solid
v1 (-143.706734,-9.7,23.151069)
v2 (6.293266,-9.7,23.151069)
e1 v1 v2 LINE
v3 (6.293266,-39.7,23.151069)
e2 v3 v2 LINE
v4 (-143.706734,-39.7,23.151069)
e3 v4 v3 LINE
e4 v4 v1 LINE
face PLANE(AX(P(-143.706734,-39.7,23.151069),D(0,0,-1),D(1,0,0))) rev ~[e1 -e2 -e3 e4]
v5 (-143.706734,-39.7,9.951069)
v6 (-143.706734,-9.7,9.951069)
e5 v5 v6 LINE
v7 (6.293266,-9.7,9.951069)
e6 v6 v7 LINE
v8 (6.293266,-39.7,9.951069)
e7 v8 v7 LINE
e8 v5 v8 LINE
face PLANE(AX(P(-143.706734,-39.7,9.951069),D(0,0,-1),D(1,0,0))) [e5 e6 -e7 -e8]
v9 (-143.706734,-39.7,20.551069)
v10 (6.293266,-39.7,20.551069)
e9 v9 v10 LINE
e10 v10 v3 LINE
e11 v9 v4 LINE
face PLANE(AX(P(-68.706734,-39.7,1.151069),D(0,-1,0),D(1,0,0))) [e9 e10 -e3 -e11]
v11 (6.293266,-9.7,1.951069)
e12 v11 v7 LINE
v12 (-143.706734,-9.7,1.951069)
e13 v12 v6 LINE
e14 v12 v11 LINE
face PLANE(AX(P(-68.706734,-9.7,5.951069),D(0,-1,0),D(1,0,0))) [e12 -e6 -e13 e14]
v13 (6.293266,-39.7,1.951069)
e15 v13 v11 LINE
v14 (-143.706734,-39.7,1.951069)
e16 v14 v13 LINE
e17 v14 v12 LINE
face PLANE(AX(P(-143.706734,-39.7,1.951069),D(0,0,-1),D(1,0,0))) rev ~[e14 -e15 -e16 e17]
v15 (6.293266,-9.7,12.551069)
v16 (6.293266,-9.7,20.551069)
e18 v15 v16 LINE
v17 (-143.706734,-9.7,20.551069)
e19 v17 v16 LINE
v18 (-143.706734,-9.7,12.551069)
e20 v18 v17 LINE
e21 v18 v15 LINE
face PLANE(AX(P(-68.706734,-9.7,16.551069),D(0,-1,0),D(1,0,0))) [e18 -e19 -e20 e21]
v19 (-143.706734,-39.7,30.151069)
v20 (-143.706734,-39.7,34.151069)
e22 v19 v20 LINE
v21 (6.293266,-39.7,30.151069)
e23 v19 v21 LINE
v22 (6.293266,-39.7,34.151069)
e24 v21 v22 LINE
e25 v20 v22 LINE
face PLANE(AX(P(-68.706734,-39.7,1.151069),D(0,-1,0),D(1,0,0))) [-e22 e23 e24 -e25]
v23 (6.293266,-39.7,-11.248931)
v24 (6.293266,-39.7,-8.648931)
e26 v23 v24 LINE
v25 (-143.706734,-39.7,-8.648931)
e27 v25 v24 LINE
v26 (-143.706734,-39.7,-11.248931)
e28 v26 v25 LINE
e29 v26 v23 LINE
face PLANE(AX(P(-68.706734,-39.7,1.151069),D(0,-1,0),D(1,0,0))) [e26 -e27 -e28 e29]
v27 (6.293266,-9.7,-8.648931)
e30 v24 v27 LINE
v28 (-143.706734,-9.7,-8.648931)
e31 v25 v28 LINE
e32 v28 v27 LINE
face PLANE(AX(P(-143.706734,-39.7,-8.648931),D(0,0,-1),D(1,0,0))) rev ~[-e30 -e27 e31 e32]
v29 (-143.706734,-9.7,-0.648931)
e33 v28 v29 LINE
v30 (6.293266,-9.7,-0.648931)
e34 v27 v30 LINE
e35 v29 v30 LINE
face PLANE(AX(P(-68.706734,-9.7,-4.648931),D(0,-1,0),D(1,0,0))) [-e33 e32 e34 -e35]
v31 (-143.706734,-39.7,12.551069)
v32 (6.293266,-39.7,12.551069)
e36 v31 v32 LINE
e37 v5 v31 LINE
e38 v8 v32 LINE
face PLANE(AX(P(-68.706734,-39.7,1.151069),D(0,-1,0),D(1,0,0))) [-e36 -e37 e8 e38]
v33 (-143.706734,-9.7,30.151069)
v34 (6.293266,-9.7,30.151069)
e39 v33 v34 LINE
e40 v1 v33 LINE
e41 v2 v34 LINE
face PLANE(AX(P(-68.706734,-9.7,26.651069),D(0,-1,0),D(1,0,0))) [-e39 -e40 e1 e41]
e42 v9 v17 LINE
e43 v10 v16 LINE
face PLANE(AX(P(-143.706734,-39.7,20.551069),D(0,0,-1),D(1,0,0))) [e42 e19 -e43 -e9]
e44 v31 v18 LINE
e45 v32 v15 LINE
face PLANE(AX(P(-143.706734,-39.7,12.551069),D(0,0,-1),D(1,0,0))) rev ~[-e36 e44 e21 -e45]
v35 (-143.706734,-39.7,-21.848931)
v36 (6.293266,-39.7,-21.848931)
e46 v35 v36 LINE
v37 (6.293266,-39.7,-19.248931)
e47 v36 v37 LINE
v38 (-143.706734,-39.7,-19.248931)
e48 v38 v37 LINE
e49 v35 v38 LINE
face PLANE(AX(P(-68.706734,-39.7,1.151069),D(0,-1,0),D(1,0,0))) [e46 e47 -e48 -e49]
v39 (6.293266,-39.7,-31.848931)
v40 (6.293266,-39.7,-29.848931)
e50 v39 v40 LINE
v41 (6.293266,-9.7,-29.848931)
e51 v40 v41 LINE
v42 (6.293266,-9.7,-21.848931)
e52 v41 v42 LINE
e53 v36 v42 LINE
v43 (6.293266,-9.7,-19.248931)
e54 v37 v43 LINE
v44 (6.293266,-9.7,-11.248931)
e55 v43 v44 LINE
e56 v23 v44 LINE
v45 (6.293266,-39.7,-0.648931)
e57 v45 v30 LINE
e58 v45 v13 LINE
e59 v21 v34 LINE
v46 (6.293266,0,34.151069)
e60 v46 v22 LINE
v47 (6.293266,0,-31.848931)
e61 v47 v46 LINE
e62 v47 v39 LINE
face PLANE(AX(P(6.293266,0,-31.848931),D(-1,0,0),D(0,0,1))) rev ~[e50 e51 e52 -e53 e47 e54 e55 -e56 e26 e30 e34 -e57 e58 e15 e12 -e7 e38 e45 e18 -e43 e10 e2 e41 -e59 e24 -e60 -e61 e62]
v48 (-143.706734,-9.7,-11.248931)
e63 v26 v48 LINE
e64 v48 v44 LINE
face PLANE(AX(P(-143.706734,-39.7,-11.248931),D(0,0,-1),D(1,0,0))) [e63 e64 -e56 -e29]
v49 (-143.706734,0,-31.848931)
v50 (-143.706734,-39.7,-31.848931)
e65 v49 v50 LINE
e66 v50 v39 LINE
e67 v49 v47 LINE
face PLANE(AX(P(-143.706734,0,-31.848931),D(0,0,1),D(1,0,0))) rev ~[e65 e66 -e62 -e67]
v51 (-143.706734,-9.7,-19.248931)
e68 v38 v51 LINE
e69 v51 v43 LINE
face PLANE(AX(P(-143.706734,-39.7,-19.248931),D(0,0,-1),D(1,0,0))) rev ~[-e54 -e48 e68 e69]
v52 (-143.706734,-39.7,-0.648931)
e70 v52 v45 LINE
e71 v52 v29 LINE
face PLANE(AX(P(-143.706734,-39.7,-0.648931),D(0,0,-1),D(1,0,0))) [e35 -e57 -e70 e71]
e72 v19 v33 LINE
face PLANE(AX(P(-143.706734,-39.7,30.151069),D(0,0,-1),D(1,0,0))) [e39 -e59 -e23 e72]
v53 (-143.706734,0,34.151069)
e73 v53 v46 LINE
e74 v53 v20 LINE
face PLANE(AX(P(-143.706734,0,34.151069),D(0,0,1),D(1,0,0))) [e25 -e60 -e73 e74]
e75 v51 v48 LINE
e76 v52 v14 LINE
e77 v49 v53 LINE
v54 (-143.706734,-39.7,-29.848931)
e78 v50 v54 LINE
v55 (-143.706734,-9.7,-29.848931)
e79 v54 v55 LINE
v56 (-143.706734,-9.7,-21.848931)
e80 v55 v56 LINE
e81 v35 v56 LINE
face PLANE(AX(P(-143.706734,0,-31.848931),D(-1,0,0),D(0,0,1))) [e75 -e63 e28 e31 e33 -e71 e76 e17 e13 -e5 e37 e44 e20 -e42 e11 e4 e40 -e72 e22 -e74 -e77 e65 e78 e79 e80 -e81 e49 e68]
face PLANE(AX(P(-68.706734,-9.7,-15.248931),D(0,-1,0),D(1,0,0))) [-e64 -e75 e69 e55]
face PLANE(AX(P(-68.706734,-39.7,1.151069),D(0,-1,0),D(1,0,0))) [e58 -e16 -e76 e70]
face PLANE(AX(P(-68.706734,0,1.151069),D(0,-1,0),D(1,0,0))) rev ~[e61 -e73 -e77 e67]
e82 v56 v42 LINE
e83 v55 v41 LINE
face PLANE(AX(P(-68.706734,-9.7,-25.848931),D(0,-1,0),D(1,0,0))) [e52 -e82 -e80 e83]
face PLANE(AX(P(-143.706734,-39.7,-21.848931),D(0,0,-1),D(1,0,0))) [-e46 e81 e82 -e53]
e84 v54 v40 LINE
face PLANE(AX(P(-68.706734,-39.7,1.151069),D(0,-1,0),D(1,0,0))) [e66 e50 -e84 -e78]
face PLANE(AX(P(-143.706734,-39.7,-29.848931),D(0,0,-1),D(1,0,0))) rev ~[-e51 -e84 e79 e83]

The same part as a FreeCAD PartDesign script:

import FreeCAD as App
import Part
import Sketcher

V = App.Vector


def add_polygon(sketch, points):
    """Adds a closed chain of lines whose ends are joined by coincident constraints."""
    first, n = sketch.GeometryCount, len(points)
    for a, b in zip(points, points[1:] + points[:1]):
        sketch.addGeometry(Part.LineSegment(App.Vector(*a, 0), App.Vector(*b, 0)), False)
    for i in range(n):
        sketch.addConstraint(Sketcher.Constraint("Coincident", first + i, 2, first + (i + 1) % n, 1))

doc = App.newDocument("Part")
body = doc.addObject("PartDesign::Body", "Body")

sketch1 = doc.addObject("Sketcher::SketchObject", "Sketch")
body.addObject(sketch1)
sketch1.AttachmentSupport = (doc.XZ_Plane, [""])
sketch1.MapMode = "FlatFace"
add_polygon(sketch1, [(-143.706734, 34.151069), (-143.706734, -31.848931), (6.293266, -31.848931), (6.293266, 34.151069)])
sketch1.addConstraint(Sketcher.Constraint("Vertical", 0))
sketch1.addConstraint(Sketcher.Constraint("Horizontal", 1))
sketch1.addConstraint(Sketcher.Constraint("Vertical", 2))
sketch1.addConstraint(Sketcher.Constraint("Horizontal", 3))
sketch1.addConstraint(Sketcher.Constraint("DistanceX", 1, 1, 1, 2, 150.0))
sketch1.addConstraint(Sketcher.Constraint("DistanceY", 0, 2, 0, 1, 66.0))
sketch1.addConstraint(Sketcher.Constraint("DistanceY", 0, 2, -1, 1, 31.848931))
sketch1.addConstraint(Sketcher.Constraint("DistanceX", 0, 2, -1, 1, 143.706734))
pad1 = doc.addObject("PartDesign::Pad", "Pad")
body.addObject(pad1)
pad1.Profile = sketch1
pad1.Length = 39.7

sketch2 = doc.addObject("Sketcher::SketchObject", "Sketch001")
body.addObject(sketch2)
sketch2.AttachmentSupport = (doc.XZ_Plane, [""])
sketch2.MapMode = "FlatFace"
sketch2.AttachmentOffset = App.Placement(V(0, 0, 39.7), App.Rotation())
add_polygon(sketch2, [(-143.706734, 30.151069), (-143.706734, 23.151069), (6.293266, 23.151069), (6.293266, 30.151069)])
sketch2.addConstraint(Sketcher.Constraint("Vertical", 0))
sketch2.addConstraint(Sketcher.Constraint("Horizontal", 1))
sketch2.addConstraint(Sketcher.Constraint("Vertical", 2))
sketch2.addConstraint(Sketcher.Constraint("Horizontal", 3))
sketch2.addConstraint(Sketcher.Constraint("DistanceX", 1, 1, 1, 2, 150.0))
sketch2.addConstraint(Sketcher.Constraint("DistanceY", 0, 2, 0, 1, 7.0))
sketch2.addConstraint(Sketcher.Constraint("DistanceY", -1, 1, 0, 2, 23.151069))
sketch2.addConstraint(Sketcher.Constraint("DistanceX", 0, 2, -1, 1, 143.706734))
pocket1 = doc.addObject("PartDesign::Pocket", "Pocket")
body.addObject(pocket1)
pocket1.Profile = sketch2
pocket1.Length = 30

sketch3 = doc.addObject("Sketcher::SketchObject", "Sketch002")
body.addObject(sketch3)
sketch3.AttachmentSupport = (doc.XZ_Plane, [""])
sketch3.MapMode = "FlatFace"
sketch3.AttachmentOffset = App.Placement(V(0, 0, 39.7), App.Rotation())
add_polygon(sketch3, [(-143.706734, 20.551069), (-143.706734, 12.551069), (6.293266, 12.551069), (6.293266, 20.551069)])
sketch3.addConstraint(Sketcher.Constraint("Vertical", 0))
sketch3.addConstraint(Sketcher.Constraint("Horizontal", 1))
sketch3.addConstraint(Sketcher.Constraint("Vertical", 2))
sketch3.addConstraint(Sketcher.Constraint("Horizontal", 3))
sketch3.addConstraint(Sketcher.Constraint("DistanceX", 1, 1, 1, 2, 150.0))
sketch3.addConstraint(Sketcher.Constraint("DistanceY", 0, 2, 0, 1, 8.0))
sketch3.addConstraint(Sketcher.Constraint("DistanceY", -1, 1, 0, 2, 12.551069))
sketch3.addConstraint(Sketcher.Constraint("DistanceX", 0, 2, -1, 1, 143.706734))
pocket2 = doc.addObject("PartDesign::Pocket", "Pocket001")
body.addObject(pocket2)
pocket2.Profile = sketch3
pocket2.Length = 30

sketch4 = doc.addObject("Sketcher::SketchObject", "Sketch003")
body.addObject(sketch4)
sketch4.AttachmentSupport = (doc.XZ_Plane, [""])
sketch4.MapMode = "FlatFace"
sketch4.AttachmentOffset = App.Placement(V(0, 0, 39.7), App.Rotation())
add_polygon(sketch4, [(-143.706734, 9.951069), (-143.706734, 1.951069), (6.293266, 1.951069), (6.293266, 9.951069)])
sketch4.addConstraint(Sketcher.Constraint("Vertical", 0))
sketch4.addConstraint(Sketcher.Constraint("Horizontal", 1))
sketch4.addConstraint(Sketcher.Constraint("Vertical", 2))
sketch4.addConstraint(Sketcher.Constraint("Horizontal", 3))
sketch4.addConstraint(Sketcher.Constraint("DistanceX", 1, 1, 1, 2, 150.0))
sketch4.addConstraint(Sketcher.Constraint("DistanceY", 0, 2, 0, 1, 8.0))
sketch4.addConstraint(Sketcher.Constraint("DistanceY", -1, 1, 0, 2, 1.951069))
sketch4.addConstraint(Sketcher.Constraint("DistanceX", 0, 2, -1, 1, 143.706734))
pocket3 = doc.addObject("PartDesign::Pocket", "Pocket002")
body.addObject(pocket3)
pocket3.Profile = sketch4
pocket3.Length = 30

sketch5 = doc.addObject("Sketcher::SketchObject", "Sketch004")
body.addObject(sketch5)
sketch5.AttachmentSupport = (doc.XZ_Plane, [""])
sketch5.MapMode = "FlatFace"
sketch5.AttachmentOffset = App.Placement(V(0, 0, 39.7), App.Rotation())
add_polygon(sketch5, [(-143.706734, -0.648931), (-143.706734, -8.648931), (6.293266, -8.648931), (6.293266, -0.648931)])
sketch5.addConstraint(Sketcher.Constraint("Vertical", 0))
sketch5.addConstraint(Sketcher.Constraint("Horizontal", 1))
sketch5.addConstraint(Sketcher.Constraint("Vertical", 2))
sketch5.addConstraint(Sketcher.Constraint("Horizontal", 3))
sketch5.addConstraint(Sketcher.Constraint("DistanceX", 1, 1, 1, 2, 150.0))
sketch5.addConstraint(Sketcher.Constraint("DistanceY", 0, 2, 0, 1, 8.0))
sketch5.addConstraint(Sketcher.Constraint("DistanceY", 0, 2, -1, 1, 8.648931))
sketch5.addConstraint(Sketcher.Constraint("DistanceX", 0, 2, -1, 1, 143.706734))
pocket4 = doc.addObject("PartDesign::Pocket", "Pocket003")
body.addObject(pocket4)
pocket4.Profile = sketch5
pocket4.Length = 30

sketch6 = doc.addObject("Sketcher::SketchObject", "Sketch005")
body.addObject(sketch6)
sketch6.AttachmentSupport = (doc.XZ_Plane, [""])
sketch6.MapMode = "FlatFace"
sketch6.AttachmentOffset = App.Placement(V(0, 0, 39.7), App.Rotation())
add_polygon(sketch6, [(-143.706734, -11.248931), (-143.706734, -19.248931), (6.293266, -19.248931), (6.293266, -11.248931)])
sketch6.addConstraint(Sketcher.Constraint("Vertical", 0))
sketch6.addConstraint(Sketcher.Constraint("Horizontal", 1))
sketch6.addConstraint(Sketcher.Constraint("Vertical", 2))
sketch6.addConstraint(Sketcher.Constraint("Horizontal", 3))
sketch6.addConstraint(Sketcher.Constraint("DistanceX", 1, 1, 1, 2, 150.0))
sketch6.addConstraint(Sketcher.Constraint("DistanceY", 0, 2, 0, 1, 8.0))
sketch6.addConstraint(Sketcher.Constraint("DistanceY", 0, 2, -1, 1, 19.248931))
sketch6.addConstraint(Sketcher.Constraint("DistanceX", 0, 2, -1, 1, 143.706734))
pocket5 = doc.addObject("PartDesign::Pocket", "Pocket004")
body.addObject(pocket5)
pocket5.Profile = sketch6
pocket5.Length = 30

sketch7 = doc.addObject("Sketcher::SketchObject", "Sketch006")
body.addObject(sketch7)
sketch7.AttachmentSupport = (doc.XZ_Plane, [""])
sketch7.MapMode = "FlatFace"
sketch7.AttachmentOffset = App.Placement(V(0, 0, 39.7), App.Rotation())
add_polygon(sketch7, [(-143.706734, -21.848931), (-143.706734, -29.848931), (6.293266, -29.848931), (6.293266, -21.848931)])
sketch7.addConstraint(Sketcher.Constraint("Vertical", 0))
sketch7.addConstraint(Sketcher.Constraint("Horizontal", 1))
sketch7.addConstraint(Sketcher.Constraint("Vertical", 2))
sketch7.addConstraint(Sketcher.Constraint("Horizontal", 3))
sketch7.addConstraint(Sketcher.Constraint("DistanceX", 1, 1, 1, 2, 150.0))
sketch7.addConstraint(Sketcher.Constraint("DistanceY", 0, 2, 0, 1, 8.0))
sketch7.addConstraint(Sketcher.Constraint("DistanceY", 0, 2, -1, 1, 29.848931))
sketch7.addConstraint(Sketcher.Constraint("DistanceX", 0, 2, -1, 1, 143.706734))
pocket6 = doc.addObject("PartDesign::Pocket", "Pocket005")
body.addObject(pocket6)
pocket6.Profile = sketch7
pocket6.Length = 30

doc.recompute()
